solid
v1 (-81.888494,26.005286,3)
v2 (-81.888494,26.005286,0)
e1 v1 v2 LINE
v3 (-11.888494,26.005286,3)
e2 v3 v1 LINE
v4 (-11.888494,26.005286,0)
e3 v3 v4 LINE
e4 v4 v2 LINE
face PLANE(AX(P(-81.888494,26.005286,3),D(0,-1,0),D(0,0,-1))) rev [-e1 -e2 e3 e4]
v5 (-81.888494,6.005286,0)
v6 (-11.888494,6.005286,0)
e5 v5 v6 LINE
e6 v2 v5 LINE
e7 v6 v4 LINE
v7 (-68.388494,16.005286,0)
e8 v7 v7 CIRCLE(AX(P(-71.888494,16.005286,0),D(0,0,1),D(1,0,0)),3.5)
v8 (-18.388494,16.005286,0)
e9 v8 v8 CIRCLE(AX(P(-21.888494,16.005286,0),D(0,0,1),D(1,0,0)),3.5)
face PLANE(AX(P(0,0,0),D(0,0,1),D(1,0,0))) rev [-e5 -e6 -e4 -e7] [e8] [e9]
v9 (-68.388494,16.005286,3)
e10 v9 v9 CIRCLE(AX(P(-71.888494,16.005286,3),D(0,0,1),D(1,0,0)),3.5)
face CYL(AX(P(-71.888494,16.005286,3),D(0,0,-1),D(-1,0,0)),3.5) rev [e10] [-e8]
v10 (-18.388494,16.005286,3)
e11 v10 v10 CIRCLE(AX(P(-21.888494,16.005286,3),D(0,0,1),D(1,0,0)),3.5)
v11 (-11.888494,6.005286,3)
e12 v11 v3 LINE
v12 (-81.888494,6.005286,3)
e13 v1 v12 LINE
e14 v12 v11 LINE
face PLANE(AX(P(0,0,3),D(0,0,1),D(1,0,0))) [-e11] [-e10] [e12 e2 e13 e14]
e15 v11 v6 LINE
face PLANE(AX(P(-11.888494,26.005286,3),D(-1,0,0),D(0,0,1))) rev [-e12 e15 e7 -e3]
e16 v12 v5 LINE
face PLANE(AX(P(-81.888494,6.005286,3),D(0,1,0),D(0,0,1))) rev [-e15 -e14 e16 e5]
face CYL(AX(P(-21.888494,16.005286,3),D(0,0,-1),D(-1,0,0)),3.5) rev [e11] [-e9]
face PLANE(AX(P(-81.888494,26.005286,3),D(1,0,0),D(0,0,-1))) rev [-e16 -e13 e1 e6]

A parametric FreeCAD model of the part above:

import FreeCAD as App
import Part
import Sketcher

V = App.Vector


def add_polygon(sketch, points):
    """Adds a closed chain of lines whose ends are joined by coincident constraints."""
    first, n = sketch.GeometryCount, len(points)
    for a, b in zip(points, points[1:] + points[:1]):
        sketch.addGeometry(Part.LineSegment(App.Vector(*a, 0), App.Vector(*b, 0)), False)
    for i in range(n):
        sketch.addConstraint(Sketcher.Constraint("Coincident", first + i, 2, first + (i + 1) % n, 1))

doc = App.newDocument("Part")
body = doc.addObject("PartDesign::Body", "Body")

# Sketch on XY plane
sketch1 = body.newObject("Sketcher::SketchObject", "Sketch")
sketch1.AttachmentSupport = (doc.getObject("XY_Plane"), [""])
sketch1.MapMode = "FlatFace"
add_polygon(sketch1, [(-81.9, 26), (-81.9, 6), (-11.9, 6), (-11.9, 26)])  # lines 0-3
sketch1.addGeometry(Part.Circle(V(-71.9, 16, 0), V(0, 0, 1), 3.5), False)  # 4
sketch1.addGeometry(Part.Circle(V(-21.9, 16, 0), V(0, 0, 1), 3.5), False)  # 5
sketch1.addConstraint([
    Sketcher.Constraint("Vertical", 0),
    Sketcher.Constraint("Horizontal", 1),
    Sketcher.Constraint("Vertical", 2),
    Sketcher.Constraint("Horizontal", 3),
    Sketcher.Constraint("Equal", 4, 5),
    Sketcher.Constraint("Horizontal", 4, 3, 5, 3),
    Sketcher.Constraint("Diameter", 4, 7.0),
    Sketcher.Constraint("DistanceX", 1, 1, 1, 2, 70.0),
    Sketcher.Constraint("DistanceY", 0, 2, 0, 1, 20.0),
    Sketcher.Constraint("DistanceX", 4, 3, 5, 3, 50.0),
    Sketcher.Constraint("DistanceX", 0, 2, 4, 3, 10.0),
    Sketcher.Constraint("DistanceY", 0, 2, 4, 3, 10.0),
    Sketcher.Constraint("DistanceX", 4, 3, -1, 1, 71.888494),
    Sketcher.Constraint("DistanceY", -1, 1, 4, 3, 16.005286),
])
pad1 = body.newObject("PartDesign::Pad", "Pad")
pad1.Profile = sketch1
pad1.Length = 3

doc.recompute()
